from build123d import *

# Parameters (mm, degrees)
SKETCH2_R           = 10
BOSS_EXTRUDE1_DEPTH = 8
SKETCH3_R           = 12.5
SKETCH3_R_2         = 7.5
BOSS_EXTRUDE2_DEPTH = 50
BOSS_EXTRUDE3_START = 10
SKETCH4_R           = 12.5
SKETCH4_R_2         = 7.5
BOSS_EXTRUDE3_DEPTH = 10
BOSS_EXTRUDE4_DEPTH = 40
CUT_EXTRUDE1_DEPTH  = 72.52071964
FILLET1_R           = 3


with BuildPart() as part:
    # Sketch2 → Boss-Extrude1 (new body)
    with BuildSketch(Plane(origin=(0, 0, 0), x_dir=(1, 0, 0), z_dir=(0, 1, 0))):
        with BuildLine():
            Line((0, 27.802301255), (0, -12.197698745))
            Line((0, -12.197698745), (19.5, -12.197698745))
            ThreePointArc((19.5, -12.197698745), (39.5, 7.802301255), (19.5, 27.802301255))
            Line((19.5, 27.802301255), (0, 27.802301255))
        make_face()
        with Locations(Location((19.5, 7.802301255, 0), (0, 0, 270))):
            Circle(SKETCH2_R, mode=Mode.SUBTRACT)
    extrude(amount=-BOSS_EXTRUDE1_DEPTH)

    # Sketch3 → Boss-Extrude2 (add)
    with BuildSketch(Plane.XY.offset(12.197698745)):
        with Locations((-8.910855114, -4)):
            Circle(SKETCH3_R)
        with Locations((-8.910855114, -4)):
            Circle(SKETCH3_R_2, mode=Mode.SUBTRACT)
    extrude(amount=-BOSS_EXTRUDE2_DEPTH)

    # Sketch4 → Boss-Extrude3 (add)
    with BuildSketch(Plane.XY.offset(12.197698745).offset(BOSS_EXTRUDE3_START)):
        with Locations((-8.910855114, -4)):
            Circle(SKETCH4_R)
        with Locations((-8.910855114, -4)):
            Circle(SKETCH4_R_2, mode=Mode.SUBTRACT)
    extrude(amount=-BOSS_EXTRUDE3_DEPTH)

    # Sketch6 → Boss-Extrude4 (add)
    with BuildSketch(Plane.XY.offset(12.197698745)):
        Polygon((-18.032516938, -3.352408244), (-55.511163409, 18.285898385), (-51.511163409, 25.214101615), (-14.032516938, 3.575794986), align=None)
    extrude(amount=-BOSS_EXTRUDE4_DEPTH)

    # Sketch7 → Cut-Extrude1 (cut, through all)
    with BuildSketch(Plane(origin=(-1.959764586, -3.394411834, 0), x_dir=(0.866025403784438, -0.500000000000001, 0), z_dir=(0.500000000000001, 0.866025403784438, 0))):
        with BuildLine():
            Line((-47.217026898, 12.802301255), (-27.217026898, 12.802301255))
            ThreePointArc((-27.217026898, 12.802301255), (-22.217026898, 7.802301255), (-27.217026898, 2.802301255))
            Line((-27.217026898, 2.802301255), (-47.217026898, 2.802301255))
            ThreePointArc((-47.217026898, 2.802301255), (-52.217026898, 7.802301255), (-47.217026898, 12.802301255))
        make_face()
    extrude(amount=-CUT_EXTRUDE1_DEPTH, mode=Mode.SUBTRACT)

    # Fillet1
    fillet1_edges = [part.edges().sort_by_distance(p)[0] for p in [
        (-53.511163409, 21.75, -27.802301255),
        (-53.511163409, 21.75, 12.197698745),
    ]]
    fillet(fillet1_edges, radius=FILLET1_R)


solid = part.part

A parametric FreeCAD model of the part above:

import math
import FreeCAD as App
import Part
import Sketcher
Q = App.Units.Quantity


def edges_at(feature, points):
    """Names of the edges that pass closest to the given points."""
    edges = feature.Shape.Edges
    near = lambda p: min(range(len(edges)), key=lambda i: edges[i].distToShape(Part.Vertex(*p))[0])
    return sorted({f"Edge{near(p) + 1}" for p in points})

doc = App.newDocument("Part")
body = doc.addObject("PartDesign::Body", "Body")

# Sketch on XZ plane
sketch1 = body.newObject("Sketcher::SketchObject", "Sketch")
sketch1.AttachmentSupport = (doc.getObject("XZ_Plane"), [""])
sketch1.MapMode = "FlatFace"
sketch1.addGeometry([
    Part.LineSegment(App.Vector(0, -27.802301, 0), App.Vector(0, 12.197699, 0)),  # 0
    Part.LineSegment(App.Vector(0, 12.197699, 0), App.Vector(19.5, 12.197699, 0)),  # 1
    Part.ArcOfCircle(Part.Circle(App.Vector(19.5, -7.802301, 0), App.Vector(0, 0, 1), 20), math.radians(-90), math.radians(90)),  # 2
    Part.LineSegment(App.Vector(19.5, -27.802301, 0), App.Vector(0, -27.802301, 0)),  # 3
    Part.Circle(App.Vector(19.5, -7.802301, 0), App.Vector(0, 0, 1), 10),  # 4
], False)
sketch1.addConstraint([
    Sketcher.Constraint("Coincident", 0, 2, 1, 1),
    Sketcher.Constraint("Tangent", 1, 2, 2, 2),
    Sketcher.Constraint("Tangent", 2, 1, 3, 1),
    Sketcher.Constraint("Coincident", 3, 2, 0, 1),
    Sketcher.Constraint("Vertical", 0),
    Sketcher.Constraint("Horizontal", 1),
    Sketcher.Constraint("Horizontal", 3),
    Sketcher.Constraint("Coincident", 4, 3, 2, 3),
    Sketcher.Constraint("PointOnObject", 0, 2, -2),
    Sketcher.Constraint("Diameter", 4, 20.0),
    Sketcher.Constraint("Radius", 2, 20.0),
    Sketcher.Constraint("DistanceX", 1, 1, 1, 2, 19.5),
    Sketcher.Constraint("DistanceY", 2, 3, -1, 1, 7.802301),
])
pad1 = body.newObject("PartDesign::Pad", "Pad")
pad1.Profile = sketch1
pad1.Length = 8

# Sketch on XY plane
sketch2 = body.newObject("Sketcher::SketchObject", "Sketch001")
sketch2.AttachmentSupport = (doc.getObject("XY_Plane"), [""])
sketch2.MapMode = "FlatFace"
sketch2.AttachmentOffset = App.Placement(App.Vector(0, 0, 12.197699), App.Rotation())
sketch2.addGeometry([
    Part.Circle(App.Vector(-8.910855, -4, 0), App.Vector(0, 0, 1), 12.5),
    Part.Circle(App.Vector(-8.910855, -4, 0), App.Vector(0, 0, 1), 7.5),
], False)
sketch2.addConstraint([
    Sketcher.Constraint("Coincident", 1, 3, 0, 3),
    Sketcher.Constraint("Diameter", 0, 25.0),
    Sketcher.Constraint("Diameter", 1, 15.0),
    Sketcher.Constraint("DistanceY", 0, 3, -1, 1, 4.0),
    Sketcher.Constraint("DistanceX", 0, 3, -1, 1, 8.910855),
])
pad2 = body.newObject("PartDesign::Pad", "Pad001")
pad2.Profile = sketch2
pad2.Length = 50
pad2.Reversed = True

# Sketch on XY plane
sketch3 = body.newObject("Sketcher::SketchObject", "Sketch002")
sketch3.AttachmentSupport = (doc.getObject("XY_Plane"), [""])
sketch3.MapMode = "FlatFace"
sketch3.AttachmentOffset = App.Placement(App.Vector(0, 0, 22.197699), App.Rotation())
sketch3.addGeometry([
    Part.Circle(App.Vector(-8.910855, -4, 0), App.Vector(0, 0, 1), 12.5),
    Part.Circle(App.Vector(-8.910855, -4, 0), App.Vector(0, 0, 1), 7.5),
], False)
sketch3.addConstraint([
    Sketcher.Constraint("Coincident", 1, 3, 0, 3),
    Sketcher.Constraint("Diameter", 0, 25.0),
    Sketcher.Constraint("Diameter", 1, 15.0),
    Sketcher.Constraint("DistanceY", 0, 3, -1, 1, 4.0),
    Sketcher.Constraint("DistanceX", 0, 3, -1, 1, 8.910855),
])
pad3 = body.newObject("PartDesign::Pad", "Pad002")
pad3.Profile = sketch3
pad3.Length = 10
pad3.Reversed = True

# Sketch on XY plane
sketch4 = body.newObject("Sketcher::SketchObject", "Sketch003")
sketch4.AttachmentSupport = (doc.getObject("XY_Plane"), [""])
sketch4.MapMode = "FlatFace"
sketch4.AttachmentOffset = App.Placement(App.Vector(0, 0, 12.197699), App.Rotation())
sketch4.addGeometry([
    Part.LineSegment(App.Vector(-55.511163, 18.285898, 0), App.Vector(-18.032517, -3.352408, 0)),
    Part.LineSegment(App.Vector(-18.032517, -3.352408, 0), App.Vector(-14.032517, 3.575795, 0)),
    Part.LineSegment(App.Vector(-14.032517, 3.575795, 0), App.Vector(-51.511163, 25.214102, 0)),
    Part.LineSegment(App.Vector(-51.511163, 25.214102, 0), App.Vector(-55.511163, 18.285898, 0)),
], False)
sketch4.addConstraint([
    Sketcher.Constraint("Coincident", 0, 2, 1, 1),
    Sketcher.Constraint("Coincident", 1, 2, 2, 1),
    Sketcher.Constraint("Coincident", 2, 2, 3, 1),
    Sketcher.Constraint("Coincident", 3, 2, 0, 1),
    Sketcher.Constraint("Perpendicular", 0, 1),
    Sketcher.Constraint("Perpendicular", 1, 2),
    Sketcher.Constraint("Perpendicular", 2, 3),
    Sketcher.Constraint("Angle", 0, Q("-30 deg")),
    Sketcher.Constraint("Distance", 1, 8.0),
    Sketcher.Constraint("DistanceY", -1, 1, 2, 2, 25.214102),
    Sketcher.Constraint("DistanceY", 0, 2, -1, 1, 3.352408),
    Sketcher.Constraint("DistanceX", 0, 2, -1, 1, 18.032517),
])
pad4 = body.newObject("PartDesign::Pad", "Pad003")
pad4.Profile = sketch4
pad4.Length = 40
pad4.Reversed = True

# Sketch on an angled plane
sketch5 = body.newObject("Sketcher::SketchObject", "Sketch004")
sketch5.Placement = App.Placement(App.Vector(-1.959765, -3.394412, 0), App.Rotation(App.Vector(0.866025404, -0.5, 0), App.Vector(0, 0, -1), App.Vector(0.5, 0.866025404, 0), "ZXY"))
sketch5.addGeometry([
    Part.LineSegment(App.Vector(-27.217027, 12.802301, 0), App.Vector(-47.217027, 12.802301, 0)),
    Part.ArcOfCircle(Part.Circle(App.Vector(-47.217027, 7.802301, 0), App.Vector(0, 0, 1), 5), math.radians(90), math.radians(270)),
    Part.LineSegment(App.Vector(-47.217027, 2.802301, 0), App.Vector(-27.217027, 2.802301, 0)),
    Part.ArcOfCircle(Part.Circle(App.Vector(-27.217027, 7.802301, 0), App.Vector(0, 0, 1), 5), math.radians(-90), math.radians(90)),
], False)
sketch5.addConstraint([
    Sketcher.Constraint("Tangent", 0, 2, 1, 1),
    Sketcher.Constraint("Tangent", 1, 2, 2, 1),
    Sketcher.Constraint("Tangent", 2, 2, 3, 1),
    Sketcher.Constraint("Tangent", 3, 2, 0, 1),
    Sketcher.Constraint("Horizontal", 0),
    Sketcher.Constraint("Horizontal", 2),
    Sketcher.Constraint("Radius", 1, 5.0),
    Sketcher.Constraint("DistanceX", 0, 2, 0, 1, 20.0),
    Sketcher.Constraint("DistanceY", -1, 1, 1, 3, 7.802301),
    Sketcher.Constraint("DistanceX", 1, 3, -1, 1, 47.217027),
])
pocket1 = body.newObject("PartDesign::Pocket", "Pocket")
pocket1.Profile = sketch5
pocket1.Type = "ThroughAll"
doc.recompute()

fillet = body.newObject("PartDesign::Fillet", "Fillet")
fillet.Base = (pocket1, edges_at(pocket1, [(-53.511, 21.75, -27.802), (-53.511, 21.75, 12.198)]))
fillet.Radius = 3

doc.recompute()
